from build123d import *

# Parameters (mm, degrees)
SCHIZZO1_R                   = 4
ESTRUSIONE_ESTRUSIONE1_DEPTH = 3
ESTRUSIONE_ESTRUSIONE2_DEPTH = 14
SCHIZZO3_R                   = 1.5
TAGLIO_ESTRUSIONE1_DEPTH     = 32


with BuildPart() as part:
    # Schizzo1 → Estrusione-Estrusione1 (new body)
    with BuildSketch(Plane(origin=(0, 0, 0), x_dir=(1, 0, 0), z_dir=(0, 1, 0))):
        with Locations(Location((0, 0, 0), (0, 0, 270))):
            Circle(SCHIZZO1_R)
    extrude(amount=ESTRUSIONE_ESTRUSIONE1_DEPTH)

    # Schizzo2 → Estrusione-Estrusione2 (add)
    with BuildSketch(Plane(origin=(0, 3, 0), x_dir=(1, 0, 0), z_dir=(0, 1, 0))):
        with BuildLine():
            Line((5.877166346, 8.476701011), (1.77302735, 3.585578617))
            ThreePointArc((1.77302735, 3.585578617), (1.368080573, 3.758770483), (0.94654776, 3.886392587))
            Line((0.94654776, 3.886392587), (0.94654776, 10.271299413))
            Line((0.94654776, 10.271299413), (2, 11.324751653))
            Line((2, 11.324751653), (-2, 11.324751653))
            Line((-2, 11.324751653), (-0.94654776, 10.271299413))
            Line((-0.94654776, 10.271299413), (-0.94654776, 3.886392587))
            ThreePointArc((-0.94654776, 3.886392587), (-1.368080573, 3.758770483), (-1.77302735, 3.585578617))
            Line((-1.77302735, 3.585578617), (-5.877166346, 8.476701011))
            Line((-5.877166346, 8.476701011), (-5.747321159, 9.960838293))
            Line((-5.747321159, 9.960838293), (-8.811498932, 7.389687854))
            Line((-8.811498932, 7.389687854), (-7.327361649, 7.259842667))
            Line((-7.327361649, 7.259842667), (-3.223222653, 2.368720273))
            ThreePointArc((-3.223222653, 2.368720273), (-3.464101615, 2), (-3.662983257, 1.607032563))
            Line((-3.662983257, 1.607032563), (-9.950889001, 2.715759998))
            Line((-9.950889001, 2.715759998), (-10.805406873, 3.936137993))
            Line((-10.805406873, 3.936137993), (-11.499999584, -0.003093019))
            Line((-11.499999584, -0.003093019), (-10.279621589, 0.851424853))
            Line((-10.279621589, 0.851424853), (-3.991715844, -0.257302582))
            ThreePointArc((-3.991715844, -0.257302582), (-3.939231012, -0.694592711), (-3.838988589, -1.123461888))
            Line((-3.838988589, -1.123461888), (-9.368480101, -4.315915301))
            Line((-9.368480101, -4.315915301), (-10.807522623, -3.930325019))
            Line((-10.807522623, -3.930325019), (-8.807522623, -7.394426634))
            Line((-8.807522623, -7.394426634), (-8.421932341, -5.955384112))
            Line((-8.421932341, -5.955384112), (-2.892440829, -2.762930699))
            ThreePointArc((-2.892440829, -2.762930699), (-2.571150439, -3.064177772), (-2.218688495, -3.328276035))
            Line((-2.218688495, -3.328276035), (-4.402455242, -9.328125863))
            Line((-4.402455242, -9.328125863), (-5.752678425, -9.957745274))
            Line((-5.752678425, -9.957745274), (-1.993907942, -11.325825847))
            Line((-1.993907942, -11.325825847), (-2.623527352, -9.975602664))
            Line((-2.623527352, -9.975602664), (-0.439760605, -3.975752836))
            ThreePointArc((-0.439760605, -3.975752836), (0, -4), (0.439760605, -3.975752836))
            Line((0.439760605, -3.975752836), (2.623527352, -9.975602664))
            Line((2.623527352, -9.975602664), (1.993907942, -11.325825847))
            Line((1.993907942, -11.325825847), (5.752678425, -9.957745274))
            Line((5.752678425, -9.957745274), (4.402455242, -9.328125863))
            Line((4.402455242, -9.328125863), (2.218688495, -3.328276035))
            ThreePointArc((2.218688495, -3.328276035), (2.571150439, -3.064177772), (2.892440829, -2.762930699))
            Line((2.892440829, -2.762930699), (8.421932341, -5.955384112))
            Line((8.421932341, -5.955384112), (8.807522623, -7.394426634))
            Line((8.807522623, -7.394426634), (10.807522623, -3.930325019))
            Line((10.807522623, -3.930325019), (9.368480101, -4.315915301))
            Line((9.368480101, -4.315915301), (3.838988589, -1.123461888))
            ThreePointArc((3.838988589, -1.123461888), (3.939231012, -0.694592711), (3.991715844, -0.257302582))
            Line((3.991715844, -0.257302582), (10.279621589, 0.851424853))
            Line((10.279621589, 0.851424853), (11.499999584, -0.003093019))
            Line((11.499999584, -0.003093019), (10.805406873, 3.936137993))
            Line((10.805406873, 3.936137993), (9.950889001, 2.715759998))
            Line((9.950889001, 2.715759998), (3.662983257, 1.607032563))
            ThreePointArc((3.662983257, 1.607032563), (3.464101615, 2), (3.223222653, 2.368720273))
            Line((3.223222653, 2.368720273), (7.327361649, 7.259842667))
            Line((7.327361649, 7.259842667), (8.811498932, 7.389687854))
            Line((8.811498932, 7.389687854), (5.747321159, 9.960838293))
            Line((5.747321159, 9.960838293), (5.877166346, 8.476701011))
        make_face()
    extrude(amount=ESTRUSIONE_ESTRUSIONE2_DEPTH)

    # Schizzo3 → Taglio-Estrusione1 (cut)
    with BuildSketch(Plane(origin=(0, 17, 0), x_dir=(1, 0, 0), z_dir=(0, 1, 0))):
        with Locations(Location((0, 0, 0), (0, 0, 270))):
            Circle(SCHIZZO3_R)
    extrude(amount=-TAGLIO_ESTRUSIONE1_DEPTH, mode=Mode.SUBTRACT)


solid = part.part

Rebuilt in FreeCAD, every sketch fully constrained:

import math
import FreeCAD as App
import Part
import Sketcher
from FreeCAD import Vector
Q = App.Units.Quantity

doc = App.newDocument("Part")
body = doc.addObject("PartDesign::Body", "Body")

# Sketch on XZ plane
sketch1 = doc.addObject("Sketcher::SketchObject", "Sketch")
body.addObject(sketch1)
sketch1.AttachmentSupport = (doc.XZ_Plane, [""])
sketch1.MapMode = "FlatFace"
sketch1.addGeometry(Part.Circle(Vector(0, 0, 0), Vector(0, 0, 1), 4), False)
sketch1.addConstraint([
    Sketcher.Constraint("Coincident", 0, 3, -1, 1),
    Sketcher.Constraint("Diameter", 0, 8.0),
])
pad1 = doc.addObject("PartDesign::Pad", "Pad")
body.addObject(pad1)
pad1.Profile = sketch1
pad1.Length = 3
pad1.Reversed = True

# Sketch on XZ plane
sketch2 = doc.addObject("Sketcher::SketchObject", "Sketch001")
body.addObject(sketch2)
sketch2.AttachmentSupport = (doc.XZ_Plane, [""])
sketch2.MapMode = "FlatFace"
sketch2.AttachmentOffset = App.Placement(Vector(0, 0, -3), App.Rotation())
sketch2.addGeometry([
    Part.LineSegment(Vector(5.9, -8.5, 0), Vector(1.8, -3.6, 0)),  # 0
    Part.ArcOfCircle(Part.Circle(Vector(0, 0, 0), Vector(0, 0, 1), 4), math.radians(-76.31), math.radians(-63.69)),  # 1
    Part.LineSegment(Vector(0.9, -3.9, 0), Vector(0.9, -10.3, 0)),  # 2
    Part.LineSegment(Vector(0.9, -10.3, 0), Vector(2, -11.3, 0)),  # 3
    Part.LineSegment(Vector(2, -11.3, 0), Vector(-2, -11.3, 0)),  # 4
    Part.LineSegment(Vector(-2, -11.3, 0), Vector(-0.9, -10.3, 0)),  # 5
    Part.LineSegment(Vector(-0.9, -10.3, 0), Vector(-0.9, -3.9, 0)),  # 6
    Part.ArcOfCircle(Part.Circle(Vector(0, 0, 0), Vector(0, 0, 1), 4), math.radians(-116.31), math.radians(-103.69)),  # 7
    Part.LineSegment(Vector(-1.8, -3.6, 0), Vector(-5.9, -8.5, 0)),  # 8
    Part.LineSegment(Vector(-5.9, -8.5, 0), Vector(-5.7, -10, 0)),  # 9
    Part.LineSegment(Vector(-5.7, -10, 0), Vector(-8.8, -7.4, 0)),  # 10
    Part.LineSegment(Vector(-8.8, -7.4, 0), Vector(-7.3, -7.3, 0)),  # 11
    Part.LineSegment(Vector(-7.3, -7.3, 0), Vector(-3.2, -2.4, 0)),  # 12
    Part.ArcOfCircle(Part.Circle(Vector(0, 0, 0), Vector(0, 0, 1), 4), math.radians(-156.31), math.radians(-143.69)),  # 13
    Part.LineSegment(Vector(-3.7, -1.6, 0), Vector(-10, -2.7, 0)),  # 14
    Part.LineSegment(Vector(-10, -2.7, 0), Vector(-10.8, -3.9, 0)),  # 15
    Part.LineSegment(Vector(-10.8, -3.9, 0), Vector(-11.5, 0, 0)),  # 16
    Part.LineSegment(Vector(-11.5, 0, 0), Vector(-10.3, -0.9, 0)),  # 17
    Part.LineSegment(Vector(-10.3, -0.9, 0), Vector(-4, 0.3, 0)),  # 18
    Part.ArcOfCircle(Part.Circle(Vector(0, 0, 0), Vector(0, 0, 1), 4), math.radians(163.69), math.radians(176.31)),  # 19
    Part.LineSegment(Vector(-3.8, 1.1, 0), Vector(-9.4, 4.3, 0)),  # 20
    Part.LineSegment(Vector(-9.4, 4.3, 0), Vector(-10.8, 3.9, 0)),  # 21
    Part.LineSegment(Vector(-10.8, 3.9, 0), Vector(-8.8, 7.4, 0)),  # 22
    Part.LineSegment(Vector(-8.8, 7.4, 0), Vector(-8.4, 6, 0)),  # 23
    Part.LineSegment(Vector(-8.4, 6, 0), Vector(-2.9, 2.8, 0)),  # 24
    Part.ArcOfCircle(Part.Circle(Vector(0, 0, 0), Vector(0, 0, 1), 4), math.radians(123.69), math.radians(136.31)),  # 25
    Part.LineSegment(Vector(-2.2, 3.3, 0), Vector(-4.4, 9.3, 0)),  # 26
    Part.LineSegment(Vector(-4.4, 9.3, 0), Vector(-5.8, 10, 0)),  # 27
    Part.LineSegment(Vector(-5.8, 10, 0), Vector(-2, 11.3, 0)),  # 28
    Part.LineSegment(Vector(-2, 11.3, 0), Vector(-2.6, 10, 0)),  # 29
    Part.LineSegment(Vector(-2.6, 10, 0), Vector(-0.4, 4, 0)),  # 30
    Part.ArcOfCircle(Part.Circle(Vector(0, 0, 0), Vector(0, 0, 1), 4), math.radians(83.69), math.radians(96.31)),  # 31
    Part.LineSegment(Vector(0.4, 4, 0), Vector(2.6, 10, 0)),  # 32
    Part.LineSegment(Vector(2.6, 10, 0), Vector(2, 11.3, 0)),  # 33
    Part.LineSegment(Vector(2, 11.3, 0), Vector(5.8, 10, 0)),  # 34
    Part.LineSegment(Vector(5.8, 10, 0), Vector(4.4, 9.3, 0)),  # 35
    Part.LineSegment(Vector(4.4, 9.3, 0), Vector(2.2, 3.3, 0)),  # 36
    Part.ArcOfCircle(Part.Circle(Vector(0, 0, 0), Vector(0, 0, 1), 4), math.radians(43.69), math.radians(56.31)),  # 37
    Part.LineSegment(Vector(2.9, 2.8, 0), Vector(8.4, 6, 0)),  # 38
    Part.LineSegment(Vector(8.4, 6, 0), Vector(8.8, 7.4, 0)),  # 39
    Part.LineSegment(Vector(8.8, 7.4, 0), Vector(10.8, 3.9, 0)),  # 40
    Part.LineSegment(Vector(10.8, 3.9, 0), Vector(9.4, 4.3, 0)),  # 41
    Part.LineSegment(Vector(9.4, 4.3, 0), Vector(3.8, 1.1, 0)),  # 42
    Part.ArcOfCircle(Part.Circle(Vector(0, 0, 0), Vector(0, 0, 1), 4), math.radians(3.69), math.radians(16.31)),  # 43
    Part.LineSegment(Vector(4, 0.3, 0), Vector(10.3, -0.9, 0)),  # 44
    Part.LineSegment(Vector(10.3, -0.9, 0), Vector(11.5, 0, 0)),  # 45
    Part.LineSegment(Vector(11.5, 0, 0), Vector(10.8, -3.9, 0)),  # 46
    Part.LineSegment(Vector(10.8, -3.9, 0), Vector(10, -2.7, 0)),  # 47
    Part.LineSegment(Vector(10, -2.7, 0), Vector(3.7, -1.6, 0)),  # 48
    Part.ArcOfCircle(Part.Circle(Vector(0, 0, 0), Vector(0, 0, 1), 4), math.radians(-36.31), math.radians(-23.69)),  # 49
    Part.LineSegment(Vector(3.2, -2.4, 0), Vector(7.3, -7.3, 0)),  # 50
    Part.LineSegment(Vector(7.3, -7.3, 0), Vector(8.8, -7.4, 0)),  # 51
    Part.LineSegment(Vector(8.8, -7.4, 0), Vector(5.7, -10, 0)),  # 52
    Part.LineSegment(Vector(5.7, -10, 0), Vector(5.9, -8.5, 0)),  # 53
], False)
sketch2.addConstraint([
    Sketcher.Constraint("Coincident", 0, 2, 1, 2),
    Sketcher.Constraint("Coincident", 1, 1, 2, 1),
    Sketcher.Constraint("Coincident", 2, 2, 3, 1),
    Sketcher.Constraint("Coincident", 3, 2, 4, 1),
    Sketcher.Constraint("Coincident", 4, 2, 5, 1),
    Sketcher.Constraint("Coincident", 5, 2, 6, 1),
    Sketcher.Constraint("Coincident", 6, 2, 7, 2),
    Sketcher.Constraint("Coincident", 7, 1, 8, 1),
    Sketcher.Constraint("Coincident", 8, 2, 9, 1),
    Sketcher.Constraint("Coincident", 9, 2, 10, 1),
    Sketcher.Constraint("Coincident", 10, 2, 11, 1),
    Sketcher.Constraint("Coincident", 11, 2, 12, 1),
    Sketcher.Constraint("Coincident", 12, 2, 13, 2),
    Sketcher.Constraint("Coincident", 13, 1, 14, 1),
    Sketcher.Constraint("Coincident", 14, 2, 15, 1),
    Sketcher.Constraint("Coincident", 15, 2, 16, 1),
    Sketcher.Constraint("Coincident", 16, 2, 17, 1),
    Sketcher.Constraint("Coincident", 17, 2, 18, 1),
    Sketcher.Constraint("Coincident", 18, 2, 19, 2),
    Sketcher.Constraint("Coincident", 19, 1, 20, 1),
    Sketcher.Constraint("Coincident", 20, 2, 21, 1),
    Sketcher.Constraint("Coincident", 21, 2, 22, 1),
    Sketcher.Constraint("Coincident", 22, 2, 23, 1),
    Sketcher.Constraint("Coincident", 23, 2, 24, 1),
    Sketcher.Constraint("Coincident", 24, 2, 25, 2),
    Sketcher.Constraint("Coincident", 25, 1, 26, 1),
    Sketcher.Constraint("Coincident", 26, 2, 27, 1),
    Sketcher.Constraint("Coincident", 27, 2, 28, 1),
    Sketcher.Constraint("Coincident", 28, 2, 29, 1),
    Sketcher.Constraint("Coincident", 29, 2, 30, 1),
    Sketcher.Constraint("Coincident", 30, 2, 31, 2),
    Sketcher.Constraint("Coincident", 31, 1, 32, 1),
    Sketcher.Constraint("Coincident", 32, 2, 33, 1),
    Sketcher.Constraint("Coincident", 33, 2, 34, 1),
    Sketcher.Constraint("Coincident", 34, 2, 35, 1),
    Sketcher.Constraint("Coincident", 35, 2, 36, 1),
    Sketcher.Constraint("Coincident", 36, 2, 37, 2),
    Sketcher.Constraint("Coincident", 37, 1, 38, 1),
    Sketcher.Constraint("Coincident", 38, 2, 39, 1),
    Sketcher.Constraint("Coincident", 39, 2, 40, 1),
    Sketcher.Constraint("Coincident", 40, 2, 41, 1),
    Sketcher.Constraint("Coincident", 41, 2, 42, 1),
    Sketcher.Constraint("Coincident", 42, 2, 43, 2),
    Sketcher.Constraint("Coincident", 43, 1, 44, 1),
    Sketcher.Constraint("Coincident", 44, 2, 45, 1),
    Sketcher.Constraint("Coincident", 45, 2, 46, 1),
    Sketcher.Constraint("Coincident", 46, 2, 47, 1),
    Sketcher.Constraint("Coincident", 47, 2, 48, 1),
    Sketcher.Constraint("Coincident", 48, 2, 49, 2),
    Sketcher.Constraint("Coincident", 49, 1, 50, 1),
    Sketcher.Constraint("Coincident", 50, 2, 51, 1),
    Sketcher.Constraint("Coincident", 51, 2, 52, 1),
    Sketcher.Constraint("Coincident", 52, 2, 53, 1),
    Sketcher.Constraint("Coincident", 53, 2, 0, 1),
    Sketcher.Constraint("Vertical", 2),
    Sketcher.Constraint("Horizontal", 4),
    Sketcher.Constraint("Vertical", 6),
    Sketcher.Constraint("Coincident", 1, 3, -1, 1),
    Sketcher.Constraint("Coincident", 7, 3, -1, 1),
    Sketcher.Constraint("Coincident", 13, 3, -1, 1),
    Sketcher.Constraint("Coincident", 19, 3, -1, 1),
    Sketcher.Constraint("Coincident", 25, 3, -1, 1),
    Sketcher.Constraint("Coincident", 31, 3, -1, 1),
    Sketcher.Constraint("Coincident", 37, 3, -1, 1),
    Sketcher.Constraint("Coincident", 43, 3, -1, 1),
    Sketcher.Constraint("Coincident", 49, 3, -1, 1),
    Sketcher.Constraint("Equal", 1, 7),
    Sketcher.Constraint("Equal", 7, 13),
    Sketcher.Constraint("Equal", 13, 19),
    Sketcher.Constraint("Equal", 19, 25),
    Sketcher.Constraint("Equal", 25, 31),
    Sketcher.Constraint("Equal", 31, 37),
    Sketcher.Constraint("Equal", 37, 43),
    Sketcher.Constraint("Equal", 43, 49),
    Sketcher.Constraint("Symmetric", 2, 2, 5, 2, -2),
    Sketcher.Constraint("Symmetric", 29, 2, 32, 2, -2),
    Sketcher.Constraint("Symmetric", 28, 2, 33, 2, -2),
    Sketcher.Constraint("Symmetric", 27, 2, 34, 2, -2),
    Sketcher.Constraint("Symmetric", 26, 2, 35, 2, -2),
    Sketcher.Constraint("Symmetric", 23, 2, 38, 2, -2),
    Sketcher.Constraint("Symmetric", 22, 2, 39, 2, -2),
    Sketcher.Constraint("Symmetric", 21, 2, 40, 2, -2),
    Sketcher.Constraint("Symmetric", 20, 2, 41, 2, -2),
    Sketcher.Constraint("Symmetric", 17, 2, 44, 2, -2),
    Sketcher.Constraint("Symmetric", 16, 2, 45, 2, -2),
    Sketcher.Constraint("Symmetric", 15, 2, 46, 2, -2),
    Sketcher.Constraint("Symmetric", 14, 2, 47, 2, -2),
    Sketcher.Constraint("Symmetric", 11, 2, 50, 2, -2),
    Sketcher.Constraint("Symmetric", 10, 2, 51, 2, -2),
    Sketcher.Constraint("Symmetric", 9, 2, 52, 2, -2),
    Sketcher.Constraint("Symmetric", 8, 2, 53, 2, -2),
    Sketcher.Constraint("Perpendicular", 3, 5),
    Sketcher.Constraint("Perpendicular", 8, 10),
    Sketcher.Constraint("Perpendicular", 9, 11),
    Sketcher.Constraint("Perpendicular", 10, 12),
    Sketcher.Constraint("Perpendicular", 14, 16),
    Sketcher.Constraint("Perpendicular", 15, 17),
    Sketcher.Constraint("Perpendicular", 16, 18),
    Sketcher.Constraint("Perpendicular", 20, 22),
    Sketcher.Constraint("Perpendicular", 21, 23),
    Sketcher.Constraint("Perpendicular", 22, 24),
    Sketcher.Constraint("Perpendicular", 26, 28),
    Sketcher.Constraint("Perpendicular", 27, 29),
    Sketcher.Constraint("Perpendicular", 28, 30),
    Sketcher.Constraint("Perpendicular", 32, 34),
    Sketcher.Constraint("Perpendicular", 34, 36),
    Sketcher.Constraint("Perpendicular", 38, 40),
    Sketcher.Constraint("Perpendicular", 40, 42),
    Sketcher.Constraint("Perpendicular", 44, 46),
    Sketcher.Constraint("Perpendicular", 46, 48),
    Sketcher.Constraint("Parallel", 0, 50),
    Sketcher.Constraint("Perpendicular", 50, 52),
    Sketcher.Constraint("Equal", 3, 5),
    Sketcher.Constraint("Equal", 5, 9),
    Sketcher.Constraint("Equal", 9, 11),
    Sketcher.Constraint("Equal", 8, 12),
    Sketcher.Constraint("Equal", 12, 14),
    Sketcher.Constraint("Equal", 11, 15),
    Sketcher.Constraint("Equal", 10, 16),
    Sketcher.Constraint("Equal", 15, 17),
    Sketcher.Constraint("Equal", 14, 18),
    Sketcher.Constraint("Equal", 18, 20),
    Sketcher.Constraint("Equal", 17, 21),
    Sketcher.Constraint("Equal", 16, 22),
    Sketcher.Constraint("Equal", 21, 23),
    Sketcher.Constraint("Equal", 20, 24),
    Sketcher.Constraint("Equal", 24, 26),
    Sketcher.Constraint("Equal", 23, 27),
    Sketcher.Constraint("Equal", 22, 28),
    Sketcher.Constraint("Equal", 27, 29),
    Sketcher.Constraint("Equal", 26, 30),
    Sketcher.Constraint("Radius", 1, 4.0),
    Sketcher.Constraint("DistanceX", 4, 2, 4, 1, 4.0),
    Sketcher.Constraint("Angle", 0, Q("130 deg")),
    Sketcher.Constraint("Angle", 9, Q("-85 deg")),
    Sketcher.Constraint("Angle", 14, Q("-170 deg")),
    Sketcher.Constraint("Angle", 15, Q("-125 deg")),
    Sketcher.Constraint("Angle", 20, Q("150 deg")),
    Sketcher.Constraint("Angle", 21, Q("-165 deg")),
    Sketcher.Constraint("Angle", 26, Q("110 deg")),
    Sketcher.Constraint("Angle", 27, Q("155 deg")),
    Sketcher.Constraint("Distance", 10, 4.0),
    Sketcher.Constraint("DistanceX", 16, 2, -1, 1, 11.5),
    Sketcher.Constraint("DistanceY", 2, 2, -1, 1, 10.271299),
    Sketcher.Constraint("DistanceY", 8, 2, -1, 1, 8.476701),
])
pad2 = doc.addObject("PartDesign::Pad", "Pad001")
body.addObject(pad2)
pad2.Profile = sketch2
pad2.Length = 14
pad2.Reversed = True

# Sketch on XZ plane
sketch3 = doc.addObject("Sketcher::SketchObject", "Sketch002")
body.addObject(sketch3)
sketch3.AttachmentSupport = (doc.XZ_Plane, [""])
sketch3.MapMode = "FlatFace"
sketch3.AttachmentOffset = App.Placement(Vector(0, 0, -17), App.Rotation())
sketch3.addGeometry(Part.Circle(Vector(0, 0, 0), Vector(0, 0, 1), 1.5), False)
sketch3.addConstraint([
    Sketcher.Constraint("Coincident", 0, 3, -1, 1),
    Sketcher.Constraint("Diameter", 0, 3.0),
])
pocket1 = doc.addObject("PartDesign::Pocket", "Pocket")
body.addObject(pocket1)
pocket1.Profile = sketch3
pocket1.Length = 32
pocket1.Reversed = True

doc.recompute()
